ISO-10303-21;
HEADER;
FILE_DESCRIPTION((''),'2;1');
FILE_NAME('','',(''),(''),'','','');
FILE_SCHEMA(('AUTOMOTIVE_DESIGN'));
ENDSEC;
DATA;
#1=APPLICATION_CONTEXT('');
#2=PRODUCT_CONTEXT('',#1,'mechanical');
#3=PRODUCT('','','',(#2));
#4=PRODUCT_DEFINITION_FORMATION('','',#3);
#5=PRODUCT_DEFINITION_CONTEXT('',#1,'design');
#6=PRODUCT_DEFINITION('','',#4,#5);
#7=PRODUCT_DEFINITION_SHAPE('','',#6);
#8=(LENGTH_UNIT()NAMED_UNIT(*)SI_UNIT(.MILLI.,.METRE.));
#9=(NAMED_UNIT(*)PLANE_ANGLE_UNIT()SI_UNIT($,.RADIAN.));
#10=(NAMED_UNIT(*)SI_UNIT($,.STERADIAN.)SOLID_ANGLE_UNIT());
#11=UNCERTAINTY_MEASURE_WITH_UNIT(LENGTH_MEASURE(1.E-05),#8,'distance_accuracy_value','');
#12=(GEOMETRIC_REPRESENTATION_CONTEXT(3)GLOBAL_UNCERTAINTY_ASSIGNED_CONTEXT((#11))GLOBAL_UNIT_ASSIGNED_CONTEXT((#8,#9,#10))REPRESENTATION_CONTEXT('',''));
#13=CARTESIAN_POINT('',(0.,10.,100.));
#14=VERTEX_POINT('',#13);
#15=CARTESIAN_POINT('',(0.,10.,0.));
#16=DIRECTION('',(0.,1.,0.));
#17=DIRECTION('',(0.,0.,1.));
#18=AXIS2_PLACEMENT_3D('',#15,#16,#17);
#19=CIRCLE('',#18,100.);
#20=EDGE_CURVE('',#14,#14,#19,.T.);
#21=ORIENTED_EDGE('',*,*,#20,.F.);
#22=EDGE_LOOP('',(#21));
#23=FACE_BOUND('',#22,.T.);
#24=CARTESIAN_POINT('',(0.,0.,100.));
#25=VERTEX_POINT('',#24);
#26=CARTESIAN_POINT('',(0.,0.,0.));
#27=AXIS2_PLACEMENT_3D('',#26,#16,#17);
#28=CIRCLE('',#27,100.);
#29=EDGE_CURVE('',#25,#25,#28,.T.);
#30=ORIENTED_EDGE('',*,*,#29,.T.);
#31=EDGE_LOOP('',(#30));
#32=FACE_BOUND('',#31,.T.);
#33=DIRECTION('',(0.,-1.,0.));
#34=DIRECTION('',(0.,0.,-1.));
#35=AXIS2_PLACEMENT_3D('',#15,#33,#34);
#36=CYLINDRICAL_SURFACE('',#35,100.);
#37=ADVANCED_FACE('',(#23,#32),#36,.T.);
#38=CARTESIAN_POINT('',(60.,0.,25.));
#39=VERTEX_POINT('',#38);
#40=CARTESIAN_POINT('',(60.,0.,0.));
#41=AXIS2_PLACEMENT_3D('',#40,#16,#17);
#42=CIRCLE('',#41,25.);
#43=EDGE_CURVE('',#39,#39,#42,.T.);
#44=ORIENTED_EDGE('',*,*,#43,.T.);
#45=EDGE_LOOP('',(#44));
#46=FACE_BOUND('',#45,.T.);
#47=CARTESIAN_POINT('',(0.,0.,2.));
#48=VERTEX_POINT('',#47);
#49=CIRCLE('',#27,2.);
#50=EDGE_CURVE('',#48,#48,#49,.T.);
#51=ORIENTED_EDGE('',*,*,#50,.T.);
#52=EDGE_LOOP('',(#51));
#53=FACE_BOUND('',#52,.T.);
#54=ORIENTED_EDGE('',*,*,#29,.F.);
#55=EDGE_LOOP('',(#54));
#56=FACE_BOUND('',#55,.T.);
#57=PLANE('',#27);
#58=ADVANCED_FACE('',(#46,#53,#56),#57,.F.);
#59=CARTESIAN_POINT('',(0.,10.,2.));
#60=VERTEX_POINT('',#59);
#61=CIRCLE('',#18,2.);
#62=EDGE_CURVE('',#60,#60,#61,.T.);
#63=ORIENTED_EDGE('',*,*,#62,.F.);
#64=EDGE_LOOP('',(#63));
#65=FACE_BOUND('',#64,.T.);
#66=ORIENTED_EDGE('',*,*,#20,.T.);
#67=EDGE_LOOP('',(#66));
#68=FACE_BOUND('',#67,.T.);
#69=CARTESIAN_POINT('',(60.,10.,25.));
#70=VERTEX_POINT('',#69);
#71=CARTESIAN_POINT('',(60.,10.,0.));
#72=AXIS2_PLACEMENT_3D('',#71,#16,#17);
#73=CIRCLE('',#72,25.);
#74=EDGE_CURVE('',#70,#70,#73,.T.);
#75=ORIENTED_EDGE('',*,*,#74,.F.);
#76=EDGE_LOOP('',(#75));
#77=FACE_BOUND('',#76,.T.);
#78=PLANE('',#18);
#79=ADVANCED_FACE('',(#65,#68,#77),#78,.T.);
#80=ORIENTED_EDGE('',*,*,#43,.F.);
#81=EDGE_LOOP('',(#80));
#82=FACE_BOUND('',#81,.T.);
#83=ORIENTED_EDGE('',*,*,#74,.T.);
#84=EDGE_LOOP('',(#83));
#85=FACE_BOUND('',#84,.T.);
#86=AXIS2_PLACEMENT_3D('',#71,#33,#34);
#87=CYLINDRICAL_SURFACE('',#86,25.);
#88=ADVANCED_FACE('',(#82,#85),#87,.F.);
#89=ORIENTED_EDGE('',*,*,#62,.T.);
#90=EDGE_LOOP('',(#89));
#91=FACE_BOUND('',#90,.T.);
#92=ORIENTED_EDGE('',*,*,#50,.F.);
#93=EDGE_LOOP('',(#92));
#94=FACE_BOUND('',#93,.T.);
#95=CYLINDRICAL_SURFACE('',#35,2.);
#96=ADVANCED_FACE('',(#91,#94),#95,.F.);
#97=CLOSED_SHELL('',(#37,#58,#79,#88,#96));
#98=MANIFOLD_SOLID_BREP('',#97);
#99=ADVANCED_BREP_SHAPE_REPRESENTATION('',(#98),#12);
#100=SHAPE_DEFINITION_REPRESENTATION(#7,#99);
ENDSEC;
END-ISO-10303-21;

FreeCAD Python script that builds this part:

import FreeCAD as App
import Part
import Sketcher
from FreeCAD import Vector

doc = App.newDocument("Part")
params = doc.addObject("Spreadsheet::Sheet", "Params")
for row, (alias, value) in enumerate([
    ("sketch1_diameter", "200 mm"),
    ("sketch1_diameter2", "4 mm"),
    ("sketch1_diameter3", "50 mm"),
    ("pad1_length", "10 mm"),
], start=1):
    params.set(f"A{row}", alias)
    params.set(f"B{row}", "=" + value)
    params.setAlias(f"B{row}", alias)

body = doc.addObject("PartDesign::Body", "Body")

# Sketch on XZ plane
sketch1 = body.newObject("Sketcher::SketchObject", "Sketch")
sketch1.AttachmentSupport = (doc.getObject("XZ_Plane"), [""])
sketch1.MapMode = "FlatFace"
sketch1.addGeometry([
    Part.Circle(Vector(0, 0, 0), Vector(0, 0, 1), 100),
    Part.Circle(Vector(0, 0, 0), Vector(0, 0, 1), 2),
    Part.Circle(Vector(60, 0, 0), Vector(0, 0, 1), 25),
], False)
sketch1.addConstraint([
    Sketcher.Constraint("Coincident", 0, 3, -1, 1),
    Sketcher.Constraint("Coincident", 1, 3, -1, 1),
    Sketcher.Constraint("PointOnObject", 2, 3, -1),
    Sketcher.Constraint("Diameter", 0, 200.0),
    Sketcher.Constraint("Diameter", 1, 4.0),
    Sketcher.Constraint("Diameter", 2, 50.0),
    Sketcher.Constraint("DistanceX", -1, 1, 2, 3, 60.0),
])
sketch1.setExpression("Constraints[3]", "Params.sketch1_diameter")
sketch1.setExpression("Constraints[4]", "Params.sketch1_diameter2")
sketch1.setExpression("Constraints[5]", "Params.sketch1_diameter3")
pad1 = body.newObject("PartDesign::Pad", "Pad")
pad1.Profile = sketch1
pad1.setExpression("Length", "Params.pad1_length")
pad1.Reversed = True

doc.recompute()
